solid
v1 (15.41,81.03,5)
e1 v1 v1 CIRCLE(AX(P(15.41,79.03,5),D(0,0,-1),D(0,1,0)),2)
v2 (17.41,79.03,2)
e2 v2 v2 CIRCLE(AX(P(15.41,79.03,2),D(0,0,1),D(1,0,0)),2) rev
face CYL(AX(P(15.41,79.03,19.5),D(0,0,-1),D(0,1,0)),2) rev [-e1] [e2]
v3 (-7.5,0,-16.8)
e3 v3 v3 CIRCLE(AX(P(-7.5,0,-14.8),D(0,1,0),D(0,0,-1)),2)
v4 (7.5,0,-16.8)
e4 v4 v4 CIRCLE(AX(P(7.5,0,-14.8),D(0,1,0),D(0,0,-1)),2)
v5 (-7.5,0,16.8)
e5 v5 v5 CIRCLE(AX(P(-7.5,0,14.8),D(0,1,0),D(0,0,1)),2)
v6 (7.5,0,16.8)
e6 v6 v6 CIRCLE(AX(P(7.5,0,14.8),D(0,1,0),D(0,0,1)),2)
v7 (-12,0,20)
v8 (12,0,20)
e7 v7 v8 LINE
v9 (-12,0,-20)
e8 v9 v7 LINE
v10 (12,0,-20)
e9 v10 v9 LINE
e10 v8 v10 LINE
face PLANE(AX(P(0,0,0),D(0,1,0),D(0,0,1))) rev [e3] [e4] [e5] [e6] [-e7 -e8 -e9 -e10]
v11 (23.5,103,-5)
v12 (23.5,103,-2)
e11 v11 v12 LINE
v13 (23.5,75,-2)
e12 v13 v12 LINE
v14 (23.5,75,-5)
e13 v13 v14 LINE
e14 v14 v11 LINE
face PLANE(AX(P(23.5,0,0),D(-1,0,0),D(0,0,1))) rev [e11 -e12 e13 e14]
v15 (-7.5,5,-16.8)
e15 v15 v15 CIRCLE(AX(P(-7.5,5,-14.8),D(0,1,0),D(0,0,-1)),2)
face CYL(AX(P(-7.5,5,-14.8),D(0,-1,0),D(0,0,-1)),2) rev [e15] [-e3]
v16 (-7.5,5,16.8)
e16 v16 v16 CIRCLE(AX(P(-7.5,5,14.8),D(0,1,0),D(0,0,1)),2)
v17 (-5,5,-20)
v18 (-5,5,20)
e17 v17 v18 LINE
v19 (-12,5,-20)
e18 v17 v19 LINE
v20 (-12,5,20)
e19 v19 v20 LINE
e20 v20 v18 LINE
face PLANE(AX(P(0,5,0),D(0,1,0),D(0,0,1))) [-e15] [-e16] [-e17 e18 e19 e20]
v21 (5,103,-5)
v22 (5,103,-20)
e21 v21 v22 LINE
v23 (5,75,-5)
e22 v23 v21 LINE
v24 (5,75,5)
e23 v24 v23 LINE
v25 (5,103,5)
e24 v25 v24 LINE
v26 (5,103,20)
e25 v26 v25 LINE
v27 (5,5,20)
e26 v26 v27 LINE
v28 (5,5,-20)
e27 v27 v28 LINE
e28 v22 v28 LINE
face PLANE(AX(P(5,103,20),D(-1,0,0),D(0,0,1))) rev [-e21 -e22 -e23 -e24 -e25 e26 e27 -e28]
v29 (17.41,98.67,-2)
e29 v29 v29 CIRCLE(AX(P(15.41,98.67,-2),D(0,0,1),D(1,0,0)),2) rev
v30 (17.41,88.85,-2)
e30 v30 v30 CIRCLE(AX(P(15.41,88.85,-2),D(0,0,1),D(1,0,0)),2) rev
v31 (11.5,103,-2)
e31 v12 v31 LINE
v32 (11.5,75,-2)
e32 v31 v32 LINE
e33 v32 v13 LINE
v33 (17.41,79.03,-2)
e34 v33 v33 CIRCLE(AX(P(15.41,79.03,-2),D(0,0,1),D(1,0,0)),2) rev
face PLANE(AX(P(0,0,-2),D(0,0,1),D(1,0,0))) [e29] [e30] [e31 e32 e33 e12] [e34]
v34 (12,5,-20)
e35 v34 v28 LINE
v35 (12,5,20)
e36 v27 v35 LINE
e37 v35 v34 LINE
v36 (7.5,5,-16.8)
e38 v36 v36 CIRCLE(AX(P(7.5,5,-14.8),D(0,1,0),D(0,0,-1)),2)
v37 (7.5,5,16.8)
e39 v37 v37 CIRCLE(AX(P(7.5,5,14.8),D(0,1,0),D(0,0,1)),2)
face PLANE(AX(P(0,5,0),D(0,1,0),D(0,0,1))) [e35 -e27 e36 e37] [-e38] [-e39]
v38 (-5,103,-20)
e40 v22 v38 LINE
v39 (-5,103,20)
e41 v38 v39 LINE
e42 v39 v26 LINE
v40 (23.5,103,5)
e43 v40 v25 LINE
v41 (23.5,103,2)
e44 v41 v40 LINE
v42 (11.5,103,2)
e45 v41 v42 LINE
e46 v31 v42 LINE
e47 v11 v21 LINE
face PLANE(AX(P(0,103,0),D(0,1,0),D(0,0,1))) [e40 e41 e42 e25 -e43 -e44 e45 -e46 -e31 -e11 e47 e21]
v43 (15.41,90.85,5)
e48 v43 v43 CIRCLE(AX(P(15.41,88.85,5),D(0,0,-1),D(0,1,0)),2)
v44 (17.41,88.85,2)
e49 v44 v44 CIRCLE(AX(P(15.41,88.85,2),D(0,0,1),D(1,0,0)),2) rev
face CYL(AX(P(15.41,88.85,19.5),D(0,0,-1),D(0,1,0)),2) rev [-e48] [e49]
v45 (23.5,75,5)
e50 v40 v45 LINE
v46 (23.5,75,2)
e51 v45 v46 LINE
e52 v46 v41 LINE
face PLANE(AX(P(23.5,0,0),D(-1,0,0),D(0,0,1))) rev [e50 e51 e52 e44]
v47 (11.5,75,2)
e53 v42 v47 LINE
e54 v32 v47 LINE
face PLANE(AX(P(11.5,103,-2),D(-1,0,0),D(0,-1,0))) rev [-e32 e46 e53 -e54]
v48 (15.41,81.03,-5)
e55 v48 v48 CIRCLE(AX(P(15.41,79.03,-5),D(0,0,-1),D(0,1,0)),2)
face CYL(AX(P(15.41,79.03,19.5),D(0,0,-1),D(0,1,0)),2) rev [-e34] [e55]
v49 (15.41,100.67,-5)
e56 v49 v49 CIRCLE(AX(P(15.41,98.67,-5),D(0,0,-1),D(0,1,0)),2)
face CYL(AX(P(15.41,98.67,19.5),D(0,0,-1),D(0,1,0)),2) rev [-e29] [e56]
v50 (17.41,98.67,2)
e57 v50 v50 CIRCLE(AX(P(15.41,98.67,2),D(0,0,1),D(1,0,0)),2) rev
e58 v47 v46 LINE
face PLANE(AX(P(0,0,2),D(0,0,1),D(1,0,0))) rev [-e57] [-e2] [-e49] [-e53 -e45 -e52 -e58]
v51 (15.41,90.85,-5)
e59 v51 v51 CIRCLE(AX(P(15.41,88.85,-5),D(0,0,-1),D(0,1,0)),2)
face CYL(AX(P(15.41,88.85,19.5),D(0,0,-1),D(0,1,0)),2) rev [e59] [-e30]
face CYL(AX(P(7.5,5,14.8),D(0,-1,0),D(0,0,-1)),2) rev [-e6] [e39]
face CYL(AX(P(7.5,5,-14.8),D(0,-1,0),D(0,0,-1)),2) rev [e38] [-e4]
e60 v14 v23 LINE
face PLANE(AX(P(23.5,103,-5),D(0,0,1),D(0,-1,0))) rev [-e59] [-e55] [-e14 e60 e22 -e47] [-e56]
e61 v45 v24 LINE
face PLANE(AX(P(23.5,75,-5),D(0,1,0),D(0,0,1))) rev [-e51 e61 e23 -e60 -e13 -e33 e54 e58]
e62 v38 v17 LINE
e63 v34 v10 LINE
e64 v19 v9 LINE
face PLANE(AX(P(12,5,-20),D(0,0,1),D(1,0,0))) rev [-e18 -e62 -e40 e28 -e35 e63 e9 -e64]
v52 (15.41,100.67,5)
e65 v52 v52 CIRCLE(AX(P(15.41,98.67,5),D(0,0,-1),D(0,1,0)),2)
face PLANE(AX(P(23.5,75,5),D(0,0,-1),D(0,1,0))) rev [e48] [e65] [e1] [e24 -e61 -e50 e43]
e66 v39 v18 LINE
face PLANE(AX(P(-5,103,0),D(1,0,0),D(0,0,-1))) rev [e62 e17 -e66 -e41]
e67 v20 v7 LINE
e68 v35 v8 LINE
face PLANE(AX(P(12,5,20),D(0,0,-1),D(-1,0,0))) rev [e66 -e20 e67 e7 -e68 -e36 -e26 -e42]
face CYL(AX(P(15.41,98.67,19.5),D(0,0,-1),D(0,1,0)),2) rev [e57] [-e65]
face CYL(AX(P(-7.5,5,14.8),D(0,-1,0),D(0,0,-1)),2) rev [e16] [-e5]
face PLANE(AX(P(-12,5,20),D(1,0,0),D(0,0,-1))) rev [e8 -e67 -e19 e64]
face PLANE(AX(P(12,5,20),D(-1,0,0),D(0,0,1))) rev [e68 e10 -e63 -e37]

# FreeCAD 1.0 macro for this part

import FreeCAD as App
import Part
import Sketcher
from FreeCAD import Vector
Q = App.Units.Quantity

doc = App.newDocument("Part")
body = doc.addObject("PartDesign::Body", "Body")

# Sketch on XZ plane
sketch1 = body.newObject("Sketcher::SketchObject", "Sketch")
sketch1.AttachmentSupport = (doc.getObject("XZ_Plane"), [""])
sketch1.MapMode = "FlatFace"
sketch1.addGeometry([
    Part.LineSegment(Vector(-12, -20, 0), Vector(-12, 20, 0)),  # 0
    Part.LineSegment(Vector(-12, 20, 0), Vector(12, 20, 0)),  # 1
    Part.LineSegment(Vector(12, 20, 0), Vector(12, -20, 0)),  # 2
    Part.LineSegment(Vector(12, -20, 0), Vector(-12, -20, 0)),  # 3
    Part.Circle(Vector(-7.5, 14.8, 0), Vector(0, 0, 1), 2),  # 4
    Part.Circle(Vector(7.5, 14.8, 0), Vector(0, 0, 1), 2),  # 5
    Part.Circle(Vector(-7.5, -14.8, 0), Vector(0, 0, 1), 2),  # 6
    Part.Circle(Vector(7.5, -14.8, 0), Vector(0, 0, 1), 2),  # 7
], False)
sketch1.addConstraint([
    Sketcher.Constraint("Coincident", 0, 2, 1, 1),
    Sketcher.Constraint("Coincident", 1, 2, 2, 1),
    Sketcher.Constraint("Coincident", 2, 2, 3, 1),
    Sketcher.Constraint("Coincident", 3, 2, 0, 1),
    Sketcher.Constraint("Vertical", 0),
    Sketcher.Constraint("Horizontal", 1),
    Sketcher.Constraint("Vertical", 2),
    Sketcher.Constraint("Horizontal", 3),
    Sketcher.Constraint("Equal", 4, 5),
    Sketcher.Constraint("Equal", 5, 6),
    Sketcher.Constraint("Equal", 6, 7),
    Sketcher.Constraint("Symmetric", 5, 3, 6, 3, -1, 1),
    Sketcher.Constraint("Symmetric", 4, 3, 7, 3, -1, 1),
    Sketcher.Constraint("Symmetric", 0, 2, 2, 2, -1, 1),
    Sketcher.Constraint("Symmetric", 4, 3, 5, 3, -2),
    Sketcher.Constraint("Diameter", 4, Q("4 mm")),
    Sketcher.Constraint("DistanceX", 1, 1, 1, 2, Q("24 mm")),
    Sketcher.Constraint("DistanceY", 0, 1, 0, 2, Q("40 mm")),
    Sketcher.Constraint("DistanceX", 4, 3, 5, 3, Q("15 mm")),
    Sketcher.Constraint("DistanceY", -1, 1, 4, 3, Q("14.8 mm")),
])
pad1 = body.newObject("PartDesign::Pad", "Pad")
pad1.Profile = sketch1
pad1.Length = 5
pad1.Reversed = True

# Sketch on XZ plane
sketch2 = body.newObject("Sketcher::SketchObject", "Sketch001")
sketch2.AttachmentSupport = (doc.getObject("XZ_Plane"), [""])
sketch2.MapMode = "FlatFace"
sketch2.AttachmentOffset = App.Placement(Vector(0, 0, -5), App.Rotation())
sketch2.addGeometry([
    Part.LineSegment(Vector(-5, 20, 0), Vector(5, 20, 0)),
    Part.LineSegment(Vector(5, 20, 0), Vector(5, -20, 0)),
    Part.LineSegment(Vector(5, -20, 0), Vector(-5, -20, 0)),
    Part.LineSegment(Vector(-5, -20, 0), Vector(-5, 20, 0)),
], False)
sketch2.addConstraint([
    Sketcher.Constraint("Coincident", 0, 2, 1, 1),
    Sketcher.Constraint("Coincident", 1, 2, 2, 1),
    Sketcher.Constraint("Coincident", 2, 2, 3, 1),
    Sketcher.Constraint("Coincident", 3, 2, 0, 1),
    Sketcher.Constraint("Horizontal", 0),
    Sketcher.Constraint("Vertical", 1),
    Sketcher.Constraint("Horizontal", 2),
    Sketcher.Constraint("Vertical", 3),
    Sketcher.Constraint("Symmetric", 0, 2, 2, 2, -1, 1),
    Sketcher.Constraint("DistanceX", 0, 1, 0, 2, Q("10 mm")),
    Sketcher.Constraint("DistanceY", 1, 2, 1, 1, Q("40 mm")),
])
pad2 = body.newObject("PartDesign::Pad", "Pad001")
pad2.Profile = sketch2
pad2.Length = 98
pad2.Reversed = True

# Sketch on YZ plane
sketch3 = body.newObject("Sketcher::SketchObject", "Sketch002")
sketch3.AttachmentSupport = (doc.getObject("YZ_Plane"), [""])
sketch3.MapMode = "FlatFace"
sketch3.AttachmentOffset = App.Placement(Vector(0, 0, 5), App.Rotation())
sketch3.addGeometry([
    Part.LineSegment(Vector(103, 5, 0), Vector(75, 5, 0)),
    Part.LineSegment(Vector(75, 5, 0), Vector(75, -5, 0)),
    Part.LineSegment(Vector(75, -5, 0), Vector(103, -5, 0)),
    Part.LineSegment(Vector(103, -5, 0), Vector(103, 5, 0)),
], False)
sketch3.addConstraint([
    Sketcher.Constraint("Coincident", 0, 2, 1, 1),
    Sketcher.Constraint("Coincident", 1, 2, 2, 1),
    Sketcher.Constraint("Coincident", 2, 2, 3, 1),
    Sketcher.Constraint("Coincident", 3, 2, 0, 1),
    Sketcher.Constraint("Horizontal", 0),
    Sketcher.Constraint("Vertical", 1),
    Sketcher.Constraint("Horizontal", 2),
    Sketcher.Constraint("Vertical", 3),
    Sketcher.Constraint("DistanceX", 0, 2, 0, 1, Q("28 mm")),
    Sketcher.Constraint("DistanceY", 1, 2, 1, 1, Q("10 mm")),
    Sketcher.Constraint("DistanceX", -1, 1, 0, 2, Q("75 mm")),
    Sketcher.Constraint("DistanceY", -1, 1, 0, 2, Q("5 mm")),
])
pad3 = body.newObject("PartDesign::Pad", "Pad002")
pad3.Profile = sketch3
pad3.Length = 18.5

# Sketch on XY plane
sketch4 = body.newObject("Sketcher::SketchObject", "Sketch003")
sketch4.AttachmentSupport = (doc.getObject("XY_Plane"), [""])
sketch4.MapMode = "FlatFace"
sketch4.AttachmentOffset = App.Placement(Vector(0, 0, -5), App.Rotation())
sketch4.addGeometry([
    Part.Circle(Vector(15.4, 98.7, 0), Vector(0, 0, 1), 2),
    Part.Circle(Vector(15.4, 88.8, 0), Vector(0, 0, 1), 2),
    Part.Circle(Vector(15.4, 79, 0), Vector(0, 0, 1), 2),
], False)
sketch4.addConstraint([
    Sketcher.Constraint("Equal", 0, 1),
    Sketcher.Constraint("Equal", 1, 2),
    Sketcher.Constraint("Vertical", 0, 3, 1, 3),
    Sketcher.Constraint("Vertical", 1, 3, 2, 3),
    Sketcher.Constraint("Diameter", 0, Q("4 mm")),
    Sketcher.Constraint("DistanceX", -1, 1, 0, 3, Q("15.41 mm")),
    Sketcher.Constraint("DistanceY", -1, 1, 0, 3, Q("98.67 mm")),
    Sketcher.Constraint("DistanceY", -1, 1, 1, 3, Q("88.85 mm")),
    Sketcher.Constraint("DistanceY", -1, 1, 2, 3, Q("79.03 mm")),
])
pocket1 = body.newObject("PartDesign::Pocket", "Pocket")
pocket1.Profile = sketch4
pocket1.Length = 24.5
pocket1.Reversed = True

# Sketch on XY plane
sketch5 = body.newObject("Sketcher::SketchObject", "Sketch004")
sketch5.AttachmentSupport = (doc.getObject("XY_Plane"), [""])
sketch5.MapMode = "FlatFace"
sketch5.addGeometry([
    Part.LineSegment(Vector(12, 103, 0), Vector(12, 75, 0)),
    Part.LineSegment(Vector(12, 75, 0), Vector(24, 75, 0)),
    Part.LineSegment(Vector(24, 75, 0), Vector(24, 103, 0)),
    Part.LineSegment(Vector(24, 103, 0), Vector(12, 103, 0)),
], False)
sketch5.addConstraint([
    Sketcher.Constraint("Coincident", 0, 2, 1, 1),
    Sketcher.Constraint("Coincident", 1, 2, 2, 1),
    Sketcher.Constraint("Coincident", 2, 2, 3, 1),
    Sketcher.Constraint("Coincident", 3, 2, 0, 1),
    Sketcher.Constraint("Vertical", 0),
    Sketcher.Constraint("Horizontal", 1),
    Sketcher.Constraint("Vertical", 2),
    Sketcher.Constraint("Horizontal", 3),
    Sketcher.Constraint("DistanceX", 1, 1, 1, 2, Q("12 mm")),
    Sketcher.Constraint("DistanceY", 0, 2, 0, 1, Q("28 mm")),
    Sketcher.Constraint("DistanceY", -1, 1, 0, 2, Q("75 mm")),
    Sketcher.Constraint("DistanceX", -1, 1, 0, 2, Q("11.5 mm")),
])
pocket2 = body.newObject("PartDesign::Pocket", "Pocket001")
pocket2.Profile = sketch5
pocket2.Length = 4
pocket2.Midplane = True

doc.recompute()
